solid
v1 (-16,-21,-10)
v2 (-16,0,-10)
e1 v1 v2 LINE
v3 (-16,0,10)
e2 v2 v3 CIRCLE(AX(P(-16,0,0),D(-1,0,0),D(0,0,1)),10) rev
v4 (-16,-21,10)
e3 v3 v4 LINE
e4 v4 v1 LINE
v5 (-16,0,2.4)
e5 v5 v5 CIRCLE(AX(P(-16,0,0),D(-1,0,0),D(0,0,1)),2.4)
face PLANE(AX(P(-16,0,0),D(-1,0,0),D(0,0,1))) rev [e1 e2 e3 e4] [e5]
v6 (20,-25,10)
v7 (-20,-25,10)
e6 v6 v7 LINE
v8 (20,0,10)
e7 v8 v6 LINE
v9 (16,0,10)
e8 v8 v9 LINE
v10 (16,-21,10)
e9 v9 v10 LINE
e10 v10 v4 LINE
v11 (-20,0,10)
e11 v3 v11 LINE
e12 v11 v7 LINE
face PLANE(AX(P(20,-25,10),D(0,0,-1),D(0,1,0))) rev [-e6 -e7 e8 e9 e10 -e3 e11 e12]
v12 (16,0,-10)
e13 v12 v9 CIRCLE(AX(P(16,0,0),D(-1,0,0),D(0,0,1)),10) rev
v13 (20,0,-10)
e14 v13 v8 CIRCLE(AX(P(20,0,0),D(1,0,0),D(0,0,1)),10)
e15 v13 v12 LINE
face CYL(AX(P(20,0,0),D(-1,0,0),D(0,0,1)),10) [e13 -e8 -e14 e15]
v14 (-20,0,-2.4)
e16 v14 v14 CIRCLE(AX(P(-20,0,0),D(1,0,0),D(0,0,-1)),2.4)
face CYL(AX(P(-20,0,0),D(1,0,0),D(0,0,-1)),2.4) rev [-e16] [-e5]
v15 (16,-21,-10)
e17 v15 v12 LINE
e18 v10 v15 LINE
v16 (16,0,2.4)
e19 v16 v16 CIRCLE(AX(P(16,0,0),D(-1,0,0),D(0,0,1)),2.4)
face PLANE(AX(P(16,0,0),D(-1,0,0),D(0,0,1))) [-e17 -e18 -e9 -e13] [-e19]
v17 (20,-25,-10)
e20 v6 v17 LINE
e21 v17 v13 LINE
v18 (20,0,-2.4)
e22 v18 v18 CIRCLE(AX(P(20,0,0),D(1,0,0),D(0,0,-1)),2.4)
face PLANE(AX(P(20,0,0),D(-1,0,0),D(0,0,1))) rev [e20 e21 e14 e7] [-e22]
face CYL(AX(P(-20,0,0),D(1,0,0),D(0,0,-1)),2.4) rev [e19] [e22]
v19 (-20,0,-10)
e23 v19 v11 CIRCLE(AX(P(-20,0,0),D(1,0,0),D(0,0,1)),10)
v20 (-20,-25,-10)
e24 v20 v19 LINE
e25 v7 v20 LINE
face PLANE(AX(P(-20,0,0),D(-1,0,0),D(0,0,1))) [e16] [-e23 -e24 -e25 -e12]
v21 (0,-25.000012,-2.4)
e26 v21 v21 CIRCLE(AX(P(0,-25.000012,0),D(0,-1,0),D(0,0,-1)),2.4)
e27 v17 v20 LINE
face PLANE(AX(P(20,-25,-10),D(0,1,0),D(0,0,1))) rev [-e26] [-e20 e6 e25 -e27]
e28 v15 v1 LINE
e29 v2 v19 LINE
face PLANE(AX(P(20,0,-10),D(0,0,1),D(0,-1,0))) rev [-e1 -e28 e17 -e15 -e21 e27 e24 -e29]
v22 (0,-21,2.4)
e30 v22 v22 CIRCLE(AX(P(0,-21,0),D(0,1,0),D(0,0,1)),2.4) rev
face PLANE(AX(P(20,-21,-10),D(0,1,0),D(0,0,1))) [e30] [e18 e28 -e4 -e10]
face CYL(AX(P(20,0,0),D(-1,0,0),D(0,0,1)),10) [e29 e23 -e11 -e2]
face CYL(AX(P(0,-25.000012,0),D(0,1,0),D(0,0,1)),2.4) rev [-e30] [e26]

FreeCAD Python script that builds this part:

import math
import FreeCAD as App
import Part
import Sketcher


def faces_at(feature, points):
    """Names of the faces that lie closest to the given points."""
    faces = feature.Shape.Faces
    near = lambda p: min(range(len(faces)), key=lambda i: faces[i].distToShape(Part.Vertex(*p))[0])
    return sorted({f"Face{near(p) + 1}" for p in points})

doc = App.newDocument("Part")
body = doc.addObject("PartDesign::Body", "Body")

sketch1 = body.newObject("Sketcher::SketchObject", "Sketch")
sketch1.AttachmentSupport = (doc.getObject("YZ_Plane"), [""])
sketch1.MapMode = "FlatFace"
sketch1.addGeometry([
    Part.LineSegment(App.Vector(-25, -10, 0), App.Vector(0, -10, 0)),
    Part.ArcOfCircle(Part.Circle(App.Vector(0, 0, 0), App.Vector(0, 0, 1), 10), math.radians(-90), math.radians(90)),
    Part.LineSegment(App.Vector(0, 10, 0), App.Vector(-25, 10, 0)),
    Part.LineSegment(App.Vector(-25, 10, 0), App.Vector(-25, -10, 0)),
], False)
sketch1.addConstraint([
    Sketcher.Constraint("Tangent", 0, 2, 1, 1),
    Sketcher.Constraint("Tangent", 1, 2, 2, 1),
    Sketcher.Constraint("Coincident", 2, 2, 3, 1),
    Sketcher.Constraint("Coincident", 3, 2, 0, 1),
    Sketcher.Constraint("Horizontal", 0),
    Sketcher.Constraint("Horizontal", 2),
    Sketcher.Constraint("Vertical", 3),
    Sketcher.Constraint("Coincident", 1, 3, -1, 1),
    Sketcher.Constraint("Radius", 1, 10.0),
    Sketcher.Constraint("DistanceX", 0, 1, 0, 2, 25.0),
])
pad1 = body.newObject("PartDesign::Pad", "Pad")
pad1.Profile = sketch1
pad1.Length = 40
pad1.Midplane = True
doc.recompute()

thickness = body.newObject("PartDesign::Thickness", "Thickness")
thickness.Base = (pad1, faces_at(pad1, [(0, -12.5, -10), (0, -12.5, 10), (0, 10, 0)]))
thickness.Value = 4
thickness.Reversed = True
thickness.Join = "Intersection"

sketch2 = body.newObject("Sketcher::SketchObject", "Sketch001")
sketch2.AttachmentSupport = (doc.getObject("YZ_Plane"), [""])
sketch2.MapMode = "FlatFace"
sketch2.AttachmentOffset = App.Placement(App.Vector(0, 0, 20), App.Rotation())
sketch2.addGeometry(Part.Circle(App.Vector(0, 0, 0), App.Vector(0, 0, 1), 2.4), False)
sketch2.addConstraint([
    Sketcher.Constraint("Coincident", 0, 3, -1, 1),
    Sketcher.Constraint("Diameter", 0, 4.8),
])
pocket1 = body.newObject("PartDesign::Pocket", "Pocket")
pocket1.Profile = sketch2
pocket1.Type = "ThroughAll"

sketch3 = body.newObject("Sketcher::SketchObject", "Sketch002")
sketch3.AttachmentSupport = (doc.getObject("XZ_Plane"), [""])
sketch3.MapMode = "FlatFace"
sketch3.AttachmentOffset = App.Placement(App.Vector(0, 0, 25), App.Rotation())
sketch3.addGeometry(Part.Circle(App.Vector(0, 0, 0), App.Vector(0, 0, 1), 2.4), False)
sketch3.addConstraint([
    Sketcher.Constraint("Coincident", 0, 3, -1, 1),
    Sketcher.Constraint("Diameter", 0, 4.8),
])
pocket2 = body.newObject("PartDesign::Pocket", "Pocket001")
pocket2.Profile = sketch3
pocket2.Type = "UpToFirst"

sketch4 = body.newObject("Sketcher::SketchObject", "Sketch003")
sketch4.AttachmentSupport = (doc.getObject("XZ_Plane"), [""])
sketch4.MapMode = "FlatFace"
sketch4.AttachmentOffset = App.Placement(App.Vector(0, 0, 25), App.Rotation())
sketch4.addGeometry(Part.Circle(App.Vector(0, 0, 0), App.Vector(0, 0, 1), 2.4), False)
sketch4.addConstraint([
    Sketcher.Constraint("Coincident", 0, 3, -1, 1),
    Sketcher.Constraint("Diameter", 0, 4.8),
])
pocket3 = body.newObject("PartDesign::Pocket", "Pocket002")
pocket3.Profile = sketch4
pocket3.Length = 42.533119
pocket3.Reversed = True

doc.recompute()
